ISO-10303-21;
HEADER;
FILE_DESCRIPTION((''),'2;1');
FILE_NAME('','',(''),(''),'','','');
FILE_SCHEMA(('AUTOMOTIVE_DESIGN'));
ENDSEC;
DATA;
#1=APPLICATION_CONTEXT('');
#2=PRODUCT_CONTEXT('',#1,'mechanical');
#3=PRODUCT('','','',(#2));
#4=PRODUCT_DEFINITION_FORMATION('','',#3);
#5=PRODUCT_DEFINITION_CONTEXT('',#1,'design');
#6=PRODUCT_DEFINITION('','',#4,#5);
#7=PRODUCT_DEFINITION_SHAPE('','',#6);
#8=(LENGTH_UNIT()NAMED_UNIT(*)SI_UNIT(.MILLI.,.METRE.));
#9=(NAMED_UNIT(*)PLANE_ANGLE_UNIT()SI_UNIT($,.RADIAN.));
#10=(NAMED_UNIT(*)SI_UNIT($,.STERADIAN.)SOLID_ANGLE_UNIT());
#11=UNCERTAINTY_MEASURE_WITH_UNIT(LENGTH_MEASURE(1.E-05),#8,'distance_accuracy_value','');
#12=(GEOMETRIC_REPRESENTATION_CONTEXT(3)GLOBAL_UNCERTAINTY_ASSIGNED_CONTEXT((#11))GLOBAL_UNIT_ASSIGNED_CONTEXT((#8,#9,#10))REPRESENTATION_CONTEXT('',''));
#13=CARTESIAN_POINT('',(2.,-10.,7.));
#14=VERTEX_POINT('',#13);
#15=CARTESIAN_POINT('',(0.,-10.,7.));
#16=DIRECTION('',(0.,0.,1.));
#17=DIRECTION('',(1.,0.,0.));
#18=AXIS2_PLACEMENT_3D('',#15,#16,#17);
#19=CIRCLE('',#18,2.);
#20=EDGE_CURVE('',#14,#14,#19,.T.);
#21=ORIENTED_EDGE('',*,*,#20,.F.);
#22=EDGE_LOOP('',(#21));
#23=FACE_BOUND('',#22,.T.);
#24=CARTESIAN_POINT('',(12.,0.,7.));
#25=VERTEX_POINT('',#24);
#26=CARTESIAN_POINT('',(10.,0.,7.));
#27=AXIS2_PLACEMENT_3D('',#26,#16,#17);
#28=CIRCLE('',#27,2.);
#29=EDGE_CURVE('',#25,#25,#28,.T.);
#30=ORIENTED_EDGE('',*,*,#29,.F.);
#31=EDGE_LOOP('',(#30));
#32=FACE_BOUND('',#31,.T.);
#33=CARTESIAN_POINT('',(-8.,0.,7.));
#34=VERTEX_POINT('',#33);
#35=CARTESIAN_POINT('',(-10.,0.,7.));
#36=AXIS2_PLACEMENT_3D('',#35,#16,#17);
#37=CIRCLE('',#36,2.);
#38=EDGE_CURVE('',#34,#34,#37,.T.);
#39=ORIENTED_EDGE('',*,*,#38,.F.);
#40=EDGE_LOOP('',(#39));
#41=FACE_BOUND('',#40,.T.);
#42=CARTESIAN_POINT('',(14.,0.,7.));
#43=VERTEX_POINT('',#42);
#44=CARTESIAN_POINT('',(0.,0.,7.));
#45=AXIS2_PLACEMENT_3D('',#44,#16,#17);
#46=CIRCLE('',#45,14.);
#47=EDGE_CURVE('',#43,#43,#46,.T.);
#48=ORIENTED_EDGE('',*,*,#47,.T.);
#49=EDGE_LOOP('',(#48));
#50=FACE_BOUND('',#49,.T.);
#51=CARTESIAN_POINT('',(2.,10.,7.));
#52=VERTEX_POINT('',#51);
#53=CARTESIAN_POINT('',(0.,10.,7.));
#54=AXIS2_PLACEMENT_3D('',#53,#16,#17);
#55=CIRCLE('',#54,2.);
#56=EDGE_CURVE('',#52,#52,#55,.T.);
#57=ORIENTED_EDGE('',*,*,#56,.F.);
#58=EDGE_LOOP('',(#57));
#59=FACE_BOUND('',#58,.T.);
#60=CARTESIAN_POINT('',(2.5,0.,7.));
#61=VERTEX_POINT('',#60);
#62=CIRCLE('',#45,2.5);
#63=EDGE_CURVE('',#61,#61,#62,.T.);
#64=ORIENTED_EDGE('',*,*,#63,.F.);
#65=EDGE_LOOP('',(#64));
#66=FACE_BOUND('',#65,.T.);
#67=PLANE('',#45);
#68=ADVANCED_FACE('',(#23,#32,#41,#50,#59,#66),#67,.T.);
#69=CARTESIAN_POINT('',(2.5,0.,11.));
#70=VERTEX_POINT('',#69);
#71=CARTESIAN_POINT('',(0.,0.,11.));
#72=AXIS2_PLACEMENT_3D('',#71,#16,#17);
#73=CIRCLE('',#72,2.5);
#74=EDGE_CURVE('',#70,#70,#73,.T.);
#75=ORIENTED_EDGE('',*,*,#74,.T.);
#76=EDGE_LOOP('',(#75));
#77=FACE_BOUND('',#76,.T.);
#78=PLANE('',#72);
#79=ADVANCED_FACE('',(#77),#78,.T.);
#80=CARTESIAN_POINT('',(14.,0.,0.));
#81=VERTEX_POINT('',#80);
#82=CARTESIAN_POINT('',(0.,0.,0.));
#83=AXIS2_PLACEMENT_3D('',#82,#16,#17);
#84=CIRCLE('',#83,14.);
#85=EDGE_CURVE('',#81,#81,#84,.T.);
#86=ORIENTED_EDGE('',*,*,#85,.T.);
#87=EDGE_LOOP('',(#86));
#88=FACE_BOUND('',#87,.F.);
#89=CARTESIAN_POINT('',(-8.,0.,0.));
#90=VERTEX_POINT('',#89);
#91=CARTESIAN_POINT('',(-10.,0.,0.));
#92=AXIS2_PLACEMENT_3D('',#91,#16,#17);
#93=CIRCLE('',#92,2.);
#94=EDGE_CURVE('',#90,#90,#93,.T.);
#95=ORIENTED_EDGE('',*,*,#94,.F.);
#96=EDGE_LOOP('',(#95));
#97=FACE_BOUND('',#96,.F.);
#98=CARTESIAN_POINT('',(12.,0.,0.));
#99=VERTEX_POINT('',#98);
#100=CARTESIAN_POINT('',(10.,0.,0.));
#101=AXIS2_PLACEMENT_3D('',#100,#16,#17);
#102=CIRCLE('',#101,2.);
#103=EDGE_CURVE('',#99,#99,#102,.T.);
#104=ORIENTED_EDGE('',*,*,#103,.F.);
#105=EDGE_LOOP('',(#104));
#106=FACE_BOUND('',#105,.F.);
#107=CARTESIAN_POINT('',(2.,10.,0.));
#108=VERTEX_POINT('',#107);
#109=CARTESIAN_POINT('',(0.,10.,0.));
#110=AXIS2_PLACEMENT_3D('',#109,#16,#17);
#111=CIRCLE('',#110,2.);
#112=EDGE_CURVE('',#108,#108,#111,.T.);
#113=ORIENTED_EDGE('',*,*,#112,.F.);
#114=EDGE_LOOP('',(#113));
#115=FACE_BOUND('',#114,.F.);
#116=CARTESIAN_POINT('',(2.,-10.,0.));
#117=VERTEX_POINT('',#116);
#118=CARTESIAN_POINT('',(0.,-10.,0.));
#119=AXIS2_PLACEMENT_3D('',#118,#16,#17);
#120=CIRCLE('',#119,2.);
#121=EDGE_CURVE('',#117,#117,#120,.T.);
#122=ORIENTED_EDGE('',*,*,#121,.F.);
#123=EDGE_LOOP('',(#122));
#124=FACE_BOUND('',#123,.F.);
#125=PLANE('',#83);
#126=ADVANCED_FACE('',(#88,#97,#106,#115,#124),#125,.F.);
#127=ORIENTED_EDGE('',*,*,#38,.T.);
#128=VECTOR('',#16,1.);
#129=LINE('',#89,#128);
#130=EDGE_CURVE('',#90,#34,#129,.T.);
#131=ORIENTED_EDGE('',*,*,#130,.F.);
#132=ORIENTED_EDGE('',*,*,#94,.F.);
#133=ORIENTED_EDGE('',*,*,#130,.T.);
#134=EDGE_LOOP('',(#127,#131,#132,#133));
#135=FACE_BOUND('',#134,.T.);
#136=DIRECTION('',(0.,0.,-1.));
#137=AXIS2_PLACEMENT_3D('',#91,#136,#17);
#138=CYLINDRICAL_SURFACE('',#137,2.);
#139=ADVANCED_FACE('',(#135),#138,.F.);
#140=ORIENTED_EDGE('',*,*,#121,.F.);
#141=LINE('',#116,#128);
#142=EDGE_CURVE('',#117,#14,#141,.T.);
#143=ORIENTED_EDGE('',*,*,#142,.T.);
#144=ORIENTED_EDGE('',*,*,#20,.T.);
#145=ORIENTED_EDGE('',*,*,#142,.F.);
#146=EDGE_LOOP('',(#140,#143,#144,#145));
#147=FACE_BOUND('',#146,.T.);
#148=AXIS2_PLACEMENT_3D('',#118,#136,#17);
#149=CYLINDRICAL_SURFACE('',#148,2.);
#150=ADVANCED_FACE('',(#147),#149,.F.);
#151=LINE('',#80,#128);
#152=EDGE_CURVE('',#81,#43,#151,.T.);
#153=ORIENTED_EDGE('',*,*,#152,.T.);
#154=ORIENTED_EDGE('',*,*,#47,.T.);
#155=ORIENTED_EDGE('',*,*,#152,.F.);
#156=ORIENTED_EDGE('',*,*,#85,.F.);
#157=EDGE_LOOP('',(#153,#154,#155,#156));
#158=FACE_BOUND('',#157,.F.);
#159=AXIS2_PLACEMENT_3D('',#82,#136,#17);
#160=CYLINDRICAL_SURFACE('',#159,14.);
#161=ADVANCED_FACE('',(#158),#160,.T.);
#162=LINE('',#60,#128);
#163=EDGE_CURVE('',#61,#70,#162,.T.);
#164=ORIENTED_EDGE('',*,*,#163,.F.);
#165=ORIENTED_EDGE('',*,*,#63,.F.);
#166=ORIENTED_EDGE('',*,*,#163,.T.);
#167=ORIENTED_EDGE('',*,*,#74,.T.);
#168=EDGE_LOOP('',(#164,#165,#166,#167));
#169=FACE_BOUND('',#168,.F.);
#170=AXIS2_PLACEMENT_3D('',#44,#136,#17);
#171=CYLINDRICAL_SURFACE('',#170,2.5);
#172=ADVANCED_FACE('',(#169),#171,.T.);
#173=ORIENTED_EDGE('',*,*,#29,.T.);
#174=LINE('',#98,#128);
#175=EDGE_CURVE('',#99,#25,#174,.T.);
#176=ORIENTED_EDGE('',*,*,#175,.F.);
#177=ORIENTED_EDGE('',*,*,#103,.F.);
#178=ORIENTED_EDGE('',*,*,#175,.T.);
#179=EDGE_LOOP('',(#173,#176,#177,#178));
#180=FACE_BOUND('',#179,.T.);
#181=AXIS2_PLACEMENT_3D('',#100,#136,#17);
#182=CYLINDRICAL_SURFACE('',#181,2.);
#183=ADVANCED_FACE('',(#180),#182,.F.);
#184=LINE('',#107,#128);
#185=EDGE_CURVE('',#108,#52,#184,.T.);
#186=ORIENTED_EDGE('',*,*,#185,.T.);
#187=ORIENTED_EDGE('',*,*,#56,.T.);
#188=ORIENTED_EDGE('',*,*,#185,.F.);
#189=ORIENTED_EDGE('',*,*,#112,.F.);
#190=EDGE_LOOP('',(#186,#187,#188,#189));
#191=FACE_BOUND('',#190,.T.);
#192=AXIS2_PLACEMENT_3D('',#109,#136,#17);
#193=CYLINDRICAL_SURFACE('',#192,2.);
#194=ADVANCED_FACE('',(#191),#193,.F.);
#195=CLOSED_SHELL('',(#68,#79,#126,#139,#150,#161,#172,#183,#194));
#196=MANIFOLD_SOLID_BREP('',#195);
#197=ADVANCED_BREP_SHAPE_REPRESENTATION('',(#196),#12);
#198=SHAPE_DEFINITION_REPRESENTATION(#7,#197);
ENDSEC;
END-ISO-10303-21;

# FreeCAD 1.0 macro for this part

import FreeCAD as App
import Part
import Sketcher
Q = App.Units.Quantity

doc = App.newDocument("Part")
body = doc.addObject("PartDesign::Body", "Body")

# Sketch on XY plane
sketch1 = doc.addObject("Sketcher::SketchObject", "Sketch")
body.addObject(sketch1)
sketch1.AttachmentSupport = (doc.XY_Plane, [""])
sketch1.MapMode = "FlatFace"
sketch1.addGeometry([
    Part.Circle(App.Vector(0, 0, 0), App.Vector(0, 0, 1), 14),  # 0
    Part.Circle(App.Vector(0, -10, 0), App.Vector(0, 0, 1), 2),  # 1
    Part.Circle(App.Vector(-10, 0, 0), App.Vector(0, 0, 1), 2),  # 2
    Part.Circle(App.Vector(10, 0, 0), App.Vector(0, 0, 1), 2),  # 3
    Part.Circle(App.Vector(0, 10, 0), App.Vector(0, 0, 1), 2),  # 4
], False)
sketch1.addConstraint([
    Sketcher.Constraint("Coincident", 0, 3, -1, 1),
    Sketcher.Constraint("Equal", 1, 2),
    Sketcher.Constraint("Equal", 2, 3),
    Sketcher.Constraint("Equal", 3, 4),
    Sketcher.Constraint("Symmetric", 2, 3, 3, 3, -1, 1),
    Sketcher.Constraint("Symmetric", 1, 3, 4, 3, -1, 1),
    Sketcher.Constraint("PointOnObject", 1, 3, -2),
    Sketcher.Constraint("PointOnObject", 2, 3, -1),
    Sketcher.Constraint("Diameter", 0, Q("28 mm")),
    Sketcher.Constraint("Diameter", 1, Q("4 mm")),
    Sketcher.Constraint("DistanceY", 1, 3, -1, 1, Q("10 mm")),
    Sketcher.Constraint("DistanceX", 2, 3, -1, 1, Q("10 mm")),
])
pad1 = doc.addObject("PartDesign::Pad", "Pad")
body.addObject(pad1)
pad1.Profile = sketch1
pad1.Length = 7

# Sketch on XY plane
sketch2 = doc.addObject("Sketcher::SketchObject", "Sketch001")
body.addObject(sketch2)
sketch2.AttachmentSupport = (doc.XY_Plane, [""])
sketch2.MapMode = "FlatFace"
sketch2.AttachmentOffset = App.Placement(App.Vector(0, 0, 7), App.Rotation())
sketch2.addGeometry(Part.Circle(App.Vector(0, 0, 0), App.Vector(0, 0, 1), 2.5), False)
sketch2.addConstraint([
    Sketcher.Constraint("Coincident", 0, 3, -1, 1),
    Sketcher.Constraint("Diameter", 0, Q("5 mm")),
])
pad2 = doc.addObject("PartDesign::Pad", "Pad001")
body.addObject(pad2)
pad2.Profile = sketch2
pad2.Length = 4

doc.recompute()
